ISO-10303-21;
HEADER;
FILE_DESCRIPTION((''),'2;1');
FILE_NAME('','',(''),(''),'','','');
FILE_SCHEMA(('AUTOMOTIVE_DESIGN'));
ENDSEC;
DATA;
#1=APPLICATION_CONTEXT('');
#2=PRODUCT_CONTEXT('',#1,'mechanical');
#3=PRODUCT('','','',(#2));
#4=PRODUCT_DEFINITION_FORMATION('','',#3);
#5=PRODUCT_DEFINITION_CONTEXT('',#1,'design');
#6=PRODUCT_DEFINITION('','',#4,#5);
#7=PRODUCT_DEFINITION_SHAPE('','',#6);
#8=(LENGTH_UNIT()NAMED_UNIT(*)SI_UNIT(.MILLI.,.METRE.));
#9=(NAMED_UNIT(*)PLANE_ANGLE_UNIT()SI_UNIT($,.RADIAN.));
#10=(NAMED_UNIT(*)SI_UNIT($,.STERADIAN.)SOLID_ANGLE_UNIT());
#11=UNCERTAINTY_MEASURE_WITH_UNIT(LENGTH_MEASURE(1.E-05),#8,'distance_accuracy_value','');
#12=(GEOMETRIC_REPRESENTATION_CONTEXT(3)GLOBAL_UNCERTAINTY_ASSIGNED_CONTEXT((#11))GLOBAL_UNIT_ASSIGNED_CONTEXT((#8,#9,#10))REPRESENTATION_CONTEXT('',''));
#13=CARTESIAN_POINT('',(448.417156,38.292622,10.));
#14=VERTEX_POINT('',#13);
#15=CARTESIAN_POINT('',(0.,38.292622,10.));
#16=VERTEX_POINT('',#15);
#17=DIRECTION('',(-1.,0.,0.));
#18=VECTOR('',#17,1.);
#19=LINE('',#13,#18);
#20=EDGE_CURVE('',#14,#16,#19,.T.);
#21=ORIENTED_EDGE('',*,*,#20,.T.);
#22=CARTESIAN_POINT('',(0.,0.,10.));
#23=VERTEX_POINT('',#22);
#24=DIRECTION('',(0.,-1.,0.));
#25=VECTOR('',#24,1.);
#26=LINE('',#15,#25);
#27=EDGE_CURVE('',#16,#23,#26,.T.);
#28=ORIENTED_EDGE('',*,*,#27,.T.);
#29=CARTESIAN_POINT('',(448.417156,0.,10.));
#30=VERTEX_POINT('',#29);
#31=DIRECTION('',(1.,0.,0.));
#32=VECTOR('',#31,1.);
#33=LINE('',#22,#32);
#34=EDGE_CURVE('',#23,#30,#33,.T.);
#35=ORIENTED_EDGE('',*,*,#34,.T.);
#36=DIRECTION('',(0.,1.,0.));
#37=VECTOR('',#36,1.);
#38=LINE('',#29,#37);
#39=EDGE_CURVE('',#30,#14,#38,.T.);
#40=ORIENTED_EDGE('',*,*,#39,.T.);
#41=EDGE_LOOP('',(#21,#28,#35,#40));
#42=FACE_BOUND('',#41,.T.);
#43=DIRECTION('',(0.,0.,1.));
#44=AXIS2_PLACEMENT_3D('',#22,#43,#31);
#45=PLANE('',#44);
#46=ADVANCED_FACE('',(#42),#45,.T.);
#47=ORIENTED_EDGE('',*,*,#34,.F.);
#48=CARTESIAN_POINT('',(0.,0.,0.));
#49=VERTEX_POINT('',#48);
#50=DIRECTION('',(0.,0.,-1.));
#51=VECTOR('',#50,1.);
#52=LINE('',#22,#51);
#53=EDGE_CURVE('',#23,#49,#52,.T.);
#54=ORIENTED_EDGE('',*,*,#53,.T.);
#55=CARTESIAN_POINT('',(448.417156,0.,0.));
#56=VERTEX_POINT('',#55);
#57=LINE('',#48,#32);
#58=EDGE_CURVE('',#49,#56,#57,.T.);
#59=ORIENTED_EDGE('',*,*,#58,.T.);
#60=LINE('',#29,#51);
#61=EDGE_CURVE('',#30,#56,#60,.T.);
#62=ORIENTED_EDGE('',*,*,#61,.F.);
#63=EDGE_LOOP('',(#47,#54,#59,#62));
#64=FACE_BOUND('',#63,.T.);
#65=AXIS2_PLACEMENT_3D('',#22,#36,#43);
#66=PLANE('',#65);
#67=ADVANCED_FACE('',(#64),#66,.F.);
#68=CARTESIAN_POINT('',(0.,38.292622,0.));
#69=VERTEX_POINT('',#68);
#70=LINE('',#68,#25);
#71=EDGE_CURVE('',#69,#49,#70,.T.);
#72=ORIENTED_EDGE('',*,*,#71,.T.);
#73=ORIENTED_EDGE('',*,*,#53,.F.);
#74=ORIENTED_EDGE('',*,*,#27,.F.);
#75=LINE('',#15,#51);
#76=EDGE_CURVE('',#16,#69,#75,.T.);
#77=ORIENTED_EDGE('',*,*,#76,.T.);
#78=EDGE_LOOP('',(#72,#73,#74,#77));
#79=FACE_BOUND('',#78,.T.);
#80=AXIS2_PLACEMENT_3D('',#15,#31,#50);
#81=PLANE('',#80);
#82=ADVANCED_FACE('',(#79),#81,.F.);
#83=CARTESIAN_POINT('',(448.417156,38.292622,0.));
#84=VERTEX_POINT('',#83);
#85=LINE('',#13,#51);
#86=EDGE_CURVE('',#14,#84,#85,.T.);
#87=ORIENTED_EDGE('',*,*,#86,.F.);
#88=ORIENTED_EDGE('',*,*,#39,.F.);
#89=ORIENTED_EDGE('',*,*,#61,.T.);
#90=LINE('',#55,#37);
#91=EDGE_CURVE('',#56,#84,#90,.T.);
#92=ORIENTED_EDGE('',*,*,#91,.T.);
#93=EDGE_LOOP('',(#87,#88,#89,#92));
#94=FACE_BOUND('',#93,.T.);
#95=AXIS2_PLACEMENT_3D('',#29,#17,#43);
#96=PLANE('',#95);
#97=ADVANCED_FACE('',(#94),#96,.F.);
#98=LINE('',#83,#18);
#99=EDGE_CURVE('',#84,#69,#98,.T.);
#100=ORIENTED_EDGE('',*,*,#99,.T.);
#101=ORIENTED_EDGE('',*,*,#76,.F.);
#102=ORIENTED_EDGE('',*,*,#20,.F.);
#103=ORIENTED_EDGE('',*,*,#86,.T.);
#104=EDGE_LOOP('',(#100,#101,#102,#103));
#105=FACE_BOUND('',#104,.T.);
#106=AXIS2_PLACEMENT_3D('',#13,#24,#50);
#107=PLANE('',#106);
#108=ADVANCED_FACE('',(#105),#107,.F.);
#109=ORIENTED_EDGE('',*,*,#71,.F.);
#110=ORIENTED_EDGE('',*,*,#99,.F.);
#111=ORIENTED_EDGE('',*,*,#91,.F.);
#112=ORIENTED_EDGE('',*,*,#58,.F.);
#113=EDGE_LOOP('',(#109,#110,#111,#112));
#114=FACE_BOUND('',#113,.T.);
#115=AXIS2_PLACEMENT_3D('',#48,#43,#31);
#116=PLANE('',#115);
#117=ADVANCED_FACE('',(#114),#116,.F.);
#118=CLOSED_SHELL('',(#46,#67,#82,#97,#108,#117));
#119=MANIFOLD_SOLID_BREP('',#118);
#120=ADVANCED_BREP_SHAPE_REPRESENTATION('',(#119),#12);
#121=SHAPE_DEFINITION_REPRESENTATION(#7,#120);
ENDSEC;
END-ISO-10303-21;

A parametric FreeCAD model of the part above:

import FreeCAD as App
import Part
import Sketcher
Q = App.Units.Quantity


def add_polygon(sketch, points):
    """Adds a closed chain of lines whose ends are joined by coincident constraints."""
    first, n = sketch.GeometryCount, len(points)
    for a, b in zip(points, points[1:] + points[:1]):
        sketch.addGeometry(Part.LineSegment(App.Vector(*a, 0), App.Vector(*b, 0)), False)
    for i in range(n):
        sketch.addConstraint(Sketcher.Constraint("Coincident", first + i, 2, first + (i + 1) % n, 1))

doc = App.newDocument("Part")
body = doc.addObject("PartDesign::Body", "Body")

# Sketch on XY plane
sketch1 = body.newObject("Sketcher::SketchObject", "Sketch")
sketch1.AttachmentSupport = (doc.getObject("XY_Plane"), [""])
sketch1.MapMode = "FlatFace"
add_polygon(sketch1, [(0, 38), (0, 0), (448, 0), (448, 38)])  # lines 0-3
sketch1.addConstraint([
    Sketcher.Constraint("Vertical", 0),
    Sketcher.Constraint("Horizontal", 1),
    Sketcher.Constraint("Vertical", 2),
    Sketcher.Constraint("Horizontal", 3),
    Sketcher.Constraint("Coincident", 0, 2, -1, 1),
    Sketcher.Constraint("DistanceX", 1, 1, 1, 2, Q("448.417156 mm")),
    Sketcher.Constraint("DistanceY", 0, 2, 0, 1, Q("38.292622 mm")),
])
pad1 = body.newObject("PartDesign::Pad", "Pad")
pad1.Profile = sketch1
pad1.Length = 10

doc.recompute()
